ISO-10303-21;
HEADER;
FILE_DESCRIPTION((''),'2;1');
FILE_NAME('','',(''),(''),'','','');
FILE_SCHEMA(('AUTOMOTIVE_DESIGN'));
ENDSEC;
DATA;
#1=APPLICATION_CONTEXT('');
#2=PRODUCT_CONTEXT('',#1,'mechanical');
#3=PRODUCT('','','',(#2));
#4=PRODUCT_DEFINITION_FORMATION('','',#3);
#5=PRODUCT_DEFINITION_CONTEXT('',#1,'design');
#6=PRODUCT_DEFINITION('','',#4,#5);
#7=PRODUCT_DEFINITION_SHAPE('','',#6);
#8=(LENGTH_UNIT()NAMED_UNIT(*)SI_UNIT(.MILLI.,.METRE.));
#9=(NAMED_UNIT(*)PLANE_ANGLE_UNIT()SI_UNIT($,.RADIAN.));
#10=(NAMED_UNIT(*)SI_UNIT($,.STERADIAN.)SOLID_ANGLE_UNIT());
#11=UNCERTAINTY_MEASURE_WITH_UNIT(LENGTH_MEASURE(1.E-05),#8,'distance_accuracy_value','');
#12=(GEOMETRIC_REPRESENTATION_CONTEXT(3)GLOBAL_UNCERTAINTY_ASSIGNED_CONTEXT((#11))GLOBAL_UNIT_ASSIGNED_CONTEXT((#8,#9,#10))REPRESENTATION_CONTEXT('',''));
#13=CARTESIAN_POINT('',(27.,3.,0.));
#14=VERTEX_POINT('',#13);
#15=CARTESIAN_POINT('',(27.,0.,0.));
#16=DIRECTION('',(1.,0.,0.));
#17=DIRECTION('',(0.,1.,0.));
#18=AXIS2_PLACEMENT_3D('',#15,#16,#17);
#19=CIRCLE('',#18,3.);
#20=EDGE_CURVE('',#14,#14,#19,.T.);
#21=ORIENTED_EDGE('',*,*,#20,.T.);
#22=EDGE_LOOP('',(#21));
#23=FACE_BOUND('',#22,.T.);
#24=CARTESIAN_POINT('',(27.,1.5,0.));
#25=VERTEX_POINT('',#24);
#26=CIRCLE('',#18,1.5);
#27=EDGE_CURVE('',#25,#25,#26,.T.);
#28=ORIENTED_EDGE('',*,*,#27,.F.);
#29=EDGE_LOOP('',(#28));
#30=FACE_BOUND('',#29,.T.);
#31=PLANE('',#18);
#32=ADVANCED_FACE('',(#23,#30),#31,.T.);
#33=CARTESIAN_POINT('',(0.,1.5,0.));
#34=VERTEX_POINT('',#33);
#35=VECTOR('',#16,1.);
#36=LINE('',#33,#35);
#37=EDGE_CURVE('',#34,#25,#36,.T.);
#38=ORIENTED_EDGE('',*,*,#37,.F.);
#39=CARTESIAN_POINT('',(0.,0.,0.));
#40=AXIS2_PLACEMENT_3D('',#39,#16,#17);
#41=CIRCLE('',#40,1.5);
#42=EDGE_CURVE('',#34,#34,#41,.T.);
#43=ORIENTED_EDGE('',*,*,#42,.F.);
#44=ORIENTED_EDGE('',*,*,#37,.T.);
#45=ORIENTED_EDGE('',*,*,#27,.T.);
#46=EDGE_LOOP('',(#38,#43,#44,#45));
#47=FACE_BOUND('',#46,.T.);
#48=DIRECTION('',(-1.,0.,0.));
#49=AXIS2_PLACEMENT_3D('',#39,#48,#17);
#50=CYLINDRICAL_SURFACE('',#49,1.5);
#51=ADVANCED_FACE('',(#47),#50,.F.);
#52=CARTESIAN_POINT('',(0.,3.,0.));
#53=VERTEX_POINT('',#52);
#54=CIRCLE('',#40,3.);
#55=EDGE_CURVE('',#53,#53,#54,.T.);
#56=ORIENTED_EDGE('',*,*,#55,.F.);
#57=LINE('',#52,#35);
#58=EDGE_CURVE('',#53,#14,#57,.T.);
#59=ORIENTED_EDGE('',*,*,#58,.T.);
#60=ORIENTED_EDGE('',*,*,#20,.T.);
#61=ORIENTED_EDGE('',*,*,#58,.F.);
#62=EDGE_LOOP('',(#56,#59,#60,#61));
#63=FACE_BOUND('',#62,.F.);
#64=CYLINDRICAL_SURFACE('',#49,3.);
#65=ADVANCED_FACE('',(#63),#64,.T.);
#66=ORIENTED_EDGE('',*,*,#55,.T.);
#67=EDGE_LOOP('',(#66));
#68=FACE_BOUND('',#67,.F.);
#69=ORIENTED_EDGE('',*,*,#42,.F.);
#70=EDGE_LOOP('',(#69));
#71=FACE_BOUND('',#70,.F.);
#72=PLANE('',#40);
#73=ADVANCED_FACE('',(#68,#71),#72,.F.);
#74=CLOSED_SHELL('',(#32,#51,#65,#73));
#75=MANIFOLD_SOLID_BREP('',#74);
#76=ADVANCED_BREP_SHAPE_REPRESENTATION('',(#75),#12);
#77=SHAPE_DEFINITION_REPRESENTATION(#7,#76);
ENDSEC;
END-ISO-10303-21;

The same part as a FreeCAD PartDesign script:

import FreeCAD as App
import Part
import Sketcher

V = App.Vector

doc = App.newDocument("Part")
body = doc.addObject("PartDesign::Body", "Body")

# Sketch on YZ plane
sketch1 = body.newObject("Sketcher::SketchObject", "Sketch")
sketch1.AttachmentSupport = (doc.getObject("YZ_Plane"), [""])
sketch1.MapMode = "FlatFace"
sketch1.addGeometry([
    Part.Circle(V(0, 0, 0), V(0, 0, 1), 3),
    Part.Circle(V(0, 0, 0), V(0, 0, 1), 1.5),
], False)
sketch1.addConstraint([
    Sketcher.Constraint("Coincident", 0, 3, -1, 1),
    Sketcher.Constraint("Coincident", 1, 3, -1, 1),
    Sketcher.Constraint("Diameter", 0, 6.0),
    Sketcher.Constraint("Diameter", 1, 3.0),
])
pad1 = body.newObject("PartDesign::Pad", "Pad")
pad1.Profile = sketch1
pad1.Length = 27

doc.recompute()
